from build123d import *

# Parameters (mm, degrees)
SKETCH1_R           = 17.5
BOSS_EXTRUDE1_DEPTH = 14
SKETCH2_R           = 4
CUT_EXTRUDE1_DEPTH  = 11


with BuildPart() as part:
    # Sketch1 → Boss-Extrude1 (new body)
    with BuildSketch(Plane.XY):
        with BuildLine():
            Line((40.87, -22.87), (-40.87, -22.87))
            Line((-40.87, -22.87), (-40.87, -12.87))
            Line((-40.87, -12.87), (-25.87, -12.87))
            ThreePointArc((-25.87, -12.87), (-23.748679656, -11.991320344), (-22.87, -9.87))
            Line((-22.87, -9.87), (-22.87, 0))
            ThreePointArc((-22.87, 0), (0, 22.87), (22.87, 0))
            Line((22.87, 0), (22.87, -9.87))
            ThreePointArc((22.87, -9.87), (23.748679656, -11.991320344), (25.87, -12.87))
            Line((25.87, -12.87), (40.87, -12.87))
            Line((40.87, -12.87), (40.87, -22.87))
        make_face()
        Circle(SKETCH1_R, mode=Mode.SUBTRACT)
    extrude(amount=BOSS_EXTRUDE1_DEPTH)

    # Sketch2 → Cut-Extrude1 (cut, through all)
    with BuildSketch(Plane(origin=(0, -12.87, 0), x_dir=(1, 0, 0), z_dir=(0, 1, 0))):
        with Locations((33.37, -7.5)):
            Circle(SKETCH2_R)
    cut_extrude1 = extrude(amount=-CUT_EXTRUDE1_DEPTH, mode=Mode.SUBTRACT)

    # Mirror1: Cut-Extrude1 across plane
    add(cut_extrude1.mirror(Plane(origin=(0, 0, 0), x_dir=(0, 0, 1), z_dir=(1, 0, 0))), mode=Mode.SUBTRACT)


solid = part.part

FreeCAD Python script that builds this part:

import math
import FreeCAD as App
import Part
import Sketcher

V = App.Vector

doc = App.newDocument("Part")
body = doc.addObject("PartDesign::Body", "Body")

sketch1 = body.newObject("Sketcher::SketchObject", "Sketch")
sketch1.AttachmentSupport = (doc.getObject("XY_Plane"), [""])
sketch1.MapMode = "FlatFace"
sketch1.addGeometry([
    Part.LineSegment(V(-40.87, -22.87, 0), V(40.87, -22.87, 0)),
    Part.LineSegment(V(40.87, -22.87, 0), V(40.87, -12.87, 0)),
    Part.LineSegment(V(40.87, -12.87, 0), V(25.87, -12.87, 0)),
    Part.ArcOfCircle(Part.Circle(V(25.87, -9.87, 0), V(0, 0, 1), 3), math.radians(180), math.radians(270)),
    Part.LineSegment(V(22.87, -9.87, 0), V(22.87, 0, 0)),
    Part.ArcOfCircle(Part.Circle(V(0, 0, 0), V(0, 0, 1), 22.87), math.radians(0), math.radians(180)),
    Part.LineSegment(V(-22.87, 0, 0), V(-22.87, -9.87, 0)),
    Part.ArcOfCircle(Part.Circle(V(-25.87, -9.87, 0), V(0, 0, 1), 3), math.radians(-90), math.radians(0)),
    Part.LineSegment(V(-25.87, -12.87, 0), V(-40.87, -12.87, 0)),
    Part.LineSegment(V(-40.87, -12.87, 0), V(-40.87, -22.87, 0)),
    Part.Circle(V(0, 0, 0), V(0, 0, 1), 17.5),
], False)
sketch1.addConstraint([
    Sketcher.Constraint("Coincident", 0, 2, 1, 1),
    Sketcher.Constraint("Coincident", 1, 2, 2, 1),
    Sketcher.Constraint("Tangent", 2, 2, 3, 2),
    Sketcher.Constraint("Tangent", 3, 1, 4, 1),
    Sketcher.Constraint("Tangent", 4, 2, 5, 1),
    Sketcher.Constraint("Tangent", 5, 2, 6, 1),
    Sketcher.Constraint("Tangent", 6, 2, 7, 2),
    Sketcher.Constraint("Tangent", 7, 1, 8, 1),
    Sketcher.Constraint("Coincident", 8, 2, 9, 1),
    Sketcher.Constraint("Coincident", 9, 2, 0, 1),
    Sketcher.Constraint("Horizontal", 0),
    Sketcher.Constraint("Vertical", 1),
    Sketcher.Constraint("Horizontal", 2),
    Sketcher.Constraint("Vertical", 4),
    Sketcher.Constraint("Vertical", 6),
    Sketcher.Constraint("Horizontal", 8),
    Sketcher.Constraint("Vertical", 9),
    Sketcher.Constraint("Coincident", 5, 3, -1, 1),
    Sketcher.Constraint("Coincident", 10, 3, -1, 1),
    Sketcher.Constraint("Equal", 3, 7),
    Sketcher.Constraint("Symmetric", 1, 2, 8, 2, -2),
    Sketcher.Constraint("Diameter", 10, 35.0),
    Sketcher.Constraint("Radius", 3, 3.0),
    Sketcher.Constraint("DistanceX", 2, 2, 2, 1, 15.0),
    Sketcher.Constraint("DistanceY", 1, 1, 1, 2, 10.0),
    Sketcher.Constraint("Radius", 5, 22.87),
    Sketcher.Constraint("DistanceY", 4, 1, 4, 2, 9.87),
])
pad1 = body.newObject("PartDesign::Pad", "Pad")
pad1.Profile = sketch1
pad1.Length = 14

sketch2 = body.newObject("Sketcher::SketchObject", "Sketch001")
sketch2.AttachmentSupport = (doc.getObject("XZ_Plane"), [""])
sketch2.MapMode = "FlatFace"
sketch2.AttachmentOffset = App.Placement(V(0, 0, 12.87), App.Rotation())
sketch2.addGeometry(Part.Circle(V(33.37, 7.5, 0), V(0, 0, 1), 4), False)
sketch2.addConstraint([
    Sketcher.Constraint("Diameter", 0, 8.0),
    Sketcher.Constraint("DistanceY", -1, 1, 0, 3, 7.5),
    Sketcher.Constraint("DistanceX", -1, 1, 0, 3, 33.37),
])
pocket1 = body.newObject("PartDesign::Pocket", "Pocket")
pocket1.Profile = sketch2
pocket1.Type = "ThroughAll"
pocket1.Reversed = True
doc.recompute()

mirrored = body.newObject("PartDesign::Mirrored", "Mirrored")
mirrored.Originals = [pocket1]
mirrored.MirrorPlane = (doc.getObject("YZ_Plane"), [""])
body.Tip = mirrored

doc.recompute()
